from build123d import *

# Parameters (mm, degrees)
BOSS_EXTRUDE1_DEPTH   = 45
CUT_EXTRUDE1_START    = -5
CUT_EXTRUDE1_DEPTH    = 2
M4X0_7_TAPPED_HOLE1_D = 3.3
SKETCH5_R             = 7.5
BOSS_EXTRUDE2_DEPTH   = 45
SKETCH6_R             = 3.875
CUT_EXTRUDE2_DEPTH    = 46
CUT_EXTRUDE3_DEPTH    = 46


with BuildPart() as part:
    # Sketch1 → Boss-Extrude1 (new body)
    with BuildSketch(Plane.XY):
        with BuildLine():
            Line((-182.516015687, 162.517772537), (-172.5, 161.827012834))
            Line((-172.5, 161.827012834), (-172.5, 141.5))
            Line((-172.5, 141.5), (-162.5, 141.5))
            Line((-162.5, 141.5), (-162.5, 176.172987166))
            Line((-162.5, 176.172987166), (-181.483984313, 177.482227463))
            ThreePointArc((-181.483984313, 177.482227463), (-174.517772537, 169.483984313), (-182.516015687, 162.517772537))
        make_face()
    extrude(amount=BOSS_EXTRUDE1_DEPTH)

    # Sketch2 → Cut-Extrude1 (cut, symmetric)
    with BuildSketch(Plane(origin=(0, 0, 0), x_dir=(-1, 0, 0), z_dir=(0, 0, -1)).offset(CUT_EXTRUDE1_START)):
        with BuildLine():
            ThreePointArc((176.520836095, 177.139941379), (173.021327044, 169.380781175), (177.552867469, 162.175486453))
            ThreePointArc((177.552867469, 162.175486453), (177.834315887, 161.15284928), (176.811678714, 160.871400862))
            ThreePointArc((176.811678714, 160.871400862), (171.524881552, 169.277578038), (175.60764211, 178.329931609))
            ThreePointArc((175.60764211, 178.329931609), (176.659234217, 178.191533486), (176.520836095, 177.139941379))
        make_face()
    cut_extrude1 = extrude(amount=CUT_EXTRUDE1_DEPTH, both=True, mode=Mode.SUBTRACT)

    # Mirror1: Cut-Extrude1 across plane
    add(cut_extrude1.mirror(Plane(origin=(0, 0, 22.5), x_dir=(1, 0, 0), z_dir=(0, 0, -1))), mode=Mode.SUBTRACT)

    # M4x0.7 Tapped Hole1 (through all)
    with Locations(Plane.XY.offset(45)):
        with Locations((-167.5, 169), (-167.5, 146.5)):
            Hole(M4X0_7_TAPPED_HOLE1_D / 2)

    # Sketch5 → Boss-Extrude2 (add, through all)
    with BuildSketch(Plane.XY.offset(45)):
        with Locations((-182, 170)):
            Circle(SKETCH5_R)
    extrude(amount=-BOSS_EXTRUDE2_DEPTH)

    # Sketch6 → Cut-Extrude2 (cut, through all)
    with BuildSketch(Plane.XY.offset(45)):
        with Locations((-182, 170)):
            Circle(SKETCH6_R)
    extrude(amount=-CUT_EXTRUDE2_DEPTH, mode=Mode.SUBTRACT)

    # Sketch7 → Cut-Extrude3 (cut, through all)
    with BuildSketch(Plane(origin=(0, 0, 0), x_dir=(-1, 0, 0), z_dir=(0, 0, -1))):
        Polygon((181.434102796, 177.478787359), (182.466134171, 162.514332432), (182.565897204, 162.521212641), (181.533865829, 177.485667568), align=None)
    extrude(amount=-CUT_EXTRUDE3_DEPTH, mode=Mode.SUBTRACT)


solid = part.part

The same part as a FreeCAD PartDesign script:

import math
import FreeCAD as App
import Part
import Sketcher
from FreeCAD import Vector

doc = App.newDocument("Part")
body = doc.addObject("PartDesign::Body", "Body")
body.AllowCompound = True

# Sketch on XY plane
sketch1 = body.newObject("Sketcher::SketchObject", "Sketch")
sketch1.AttachmentSupport = (doc.getObject("XY_Plane"), [""])
sketch1.MapMode = "FlatFace"
sketch1.addGeometry([
    Part.LineSegment(Vector(-183, 163, 0), Vector(-172, 162, 0)),  # 0
    Part.LineSegment(Vector(-172, 162, 0), Vector(-172, 142, 0)),  # 1
    Part.LineSegment(Vector(-172, 142, 0), Vector(-162, 142, 0)),  # 2
    Part.LineSegment(Vector(-162, 142, 0), Vector(-162, 176, 0)),  # 3
    Part.LineSegment(Vector(-162, 176, 0), Vector(-181, 177, 0)),  # 4
    Part.ArcOfCircle(Part.Circle(Vector(-182, 170, 0), Vector(0, 0, 1), 8), math.radians(-94), math.radians(86)),  # 5
], False)
sketch1.addConstraint([
    Sketcher.Constraint("Coincident", 0, 2, 1, 1),
    Sketcher.Constraint("Coincident", 1, 2, 2, 1),
    Sketcher.Constraint("Coincident", 2, 2, 3, 1),
    Sketcher.Constraint("Coincident", 3, 2, 4, 1),
    Sketcher.Constraint("Tangent", 4, 2, 5, 2),
    Sketcher.Constraint("Tangent", 5, 1, 0, 1),
    Sketcher.Constraint("Vertical", 1),
    Sketcher.Constraint("Horizontal", 2),
    Sketcher.Constraint("Vertical", 3),
    Sketcher.Constraint("Parallel", 0, 4),
    Sketcher.Constraint("Radius", 5, 7.5),
    Sketcher.Constraint("DistanceX", 2, 1, 2, 2, 10.0),
    Sketcher.Constraint("DistanceX", 5, 3, -1, 1, 182.0),
    Sketcher.Constraint("DistanceY", -1, 1, 5, 3, 170.0),
    Sketcher.Constraint("DistanceX", 0, 2, -1, 1, 172.5),
    Sketcher.Constraint("DistanceY", -1, 1, 1, 2, 141.5),
    Sketcher.Constraint("DistanceY", 1, 2, 1, 1, 20.327013),
])
pad1 = body.newObject("PartDesign::Pad", "Pad")
pad1.Profile = sketch1
pad1.Length = 45

# Sketch on XY plane
sketch2 = body.newObject("Sketcher::SketchObject", "Sketch001")
sketch2.AttachmentSupport = (doc.getObject("XY_Plane"), [""])
sketch2.MapMode = "FlatFace"
sketch2.AttachmentOffset = App.Placement(Vector(0, 0, 5), App.Rotation())
sketch2.addGeometry([
    Part.ArcOfCircle(Part.Circle(Vector(-182, 170, 0), Vector(0, 0, 1), 9), math.radians(-60), math.radians(52)),
    Part.ArcOfCircle(Part.Circle(Vector(-176.1, 177.7, 0), Vector(0, 0, 1), 0.8), math.radians(52), math.radians(232)),
    Part.ArcOfCircle(Part.Circle(Vector(-182, 170, 0), Vector(0, 0, 1), 10.5), math.radians(-60), math.radians(52)),
    Part.ArcOfCircle(Part.Circle(Vector(-177.2, 161.5, 0), Vector(0, 0, 1), 0.8), math.radians(120), math.radians(300)),
], False)
sketch2.addConstraint([
    Sketcher.Constraint("Tangent", 0, 2, 1, 2),
    Sketcher.Constraint("Tangent", 1, 1, 2, 2),
    Sketcher.Constraint("Tangent", 2, 1, 3, 2),
    Sketcher.Constraint("Tangent", 3, 1, 0, 1),
    Sketcher.Constraint("Coincident", 2, 3, 0, 3),
    Sketcher.Constraint("Radius", 0, 9.0),
    Sketcher.Constraint("Radius", 2, 10.5),
    Sketcher.Constraint("DistanceX", 0, 3, -1, 1, 182.0),
    Sketcher.Constraint("DistanceY", -1, 1, 0, 3, 170.0),
    Sketcher.Constraint("DistanceY", -1, 1, 2, 1, 160.871401),
    Sketcher.Constraint("DistanceX", 1, 3, -1, 1, 176.064239),
])
pocket1 = body.newObject("PartDesign::Pocket", "Pocket")
pocket1.Profile = sketch2
pocket1.Length = 4
pocket1.Midplane = True
doc.recompute()

datumplane = body.newObject("PartDesign::Plane", "DatumPlane")
datumplane.AttachmentSupport = (doc.getObject("XY_Plane"), [""])
datumplane.MapMode = "FlatFace"
datumplane.AttachmentOffset = App.Placement(Vector(0, 0, 22.5), App.Rotation())
mirrored = body.newObject("PartDesign::Mirrored", "Mirrored")
mirrored.Originals = [pocket1]
mirrored.MirrorPlane = (datumplane, [""])
body.Tip = mirrored

# Sketch on XY plane
sketch3 = body.newObject("Sketcher::SketchObject", "Sketch002")
sketch3.AttachmentSupport = (doc.getObject("XY_Plane"), [""])
sketch3.MapMode = "FlatFace"
sketch3.AttachmentOffset = App.Placement(Vector(0, 0, 45), App.Rotation())
sketch3.addGeometry([
    Part.Circle(Vector(-167.5, 169, 0), Vector(0, 0, 1), 1.6),
    Part.Circle(Vector(-167.5, 146.5, 0), Vector(0, 0, 1), 1.6),
], False)
sketch3.addConstraint([
    Sketcher.Constraint("Equal", 0, 1),
    Sketcher.Constraint("Vertical", 0, 3, 1, 3),
    Sketcher.Constraint("Diameter", 0, 3.3),
    Sketcher.Constraint("DistanceY", -1, 1, 0, 3, 169.0),
    Sketcher.Constraint("DistanceX", 0, 3, -1, 1, 167.5),
    Sketcher.Constraint("DistanceY", -1, 1, 1, 3, 146.5),
])
doc.recompute()
hole = body.newObject("PartDesign::Hole", "Hole")
hole.Profile = sketch3
hole.ThreadType = "None"
hole.Diameter = 3.3
hole.DepthType = "ThroughAll"

# Sketch on XY plane
sketch4 = body.newObject("Sketcher::SketchObject", "Sketch003")
sketch4.AttachmentSupport = (doc.getObject("XY_Plane"), [""])
sketch4.MapMode = "FlatFace"
sketch4.AttachmentOffset = App.Placement(Vector(0, 0, 45), App.Rotation())
sketch4.addGeometry(Part.Circle(Vector(-182, 170, 0), Vector(0, 0, 1), 8), False)
sketch4.addConstraint([
    Sketcher.Constraint("Diameter", 0, 15.0),
    Sketcher.Constraint("DistanceX", 0, 3, -1, 1, 182.0),
    Sketcher.Constraint("DistanceY", -1, 1, 0, 3, 170.0),
])
pad2 = body.newObject("PartDesign::Pad", "Pad001")
pad2.Profile = sketch4
pad2.Length = 45
pad2.Reversed = True

# Sketch on XY plane
sketch5 = body.newObject("Sketcher::SketchObject", "Sketch004")
sketch5.AttachmentSupport = (doc.getObject("XY_Plane"), [""])
sketch5.MapMode = "FlatFace"
sketch5.AttachmentOffset = App.Placement(Vector(0, 0, 45), App.Rotation())
sketch5.addGeometry(Part.Circle(Vector(-182, 170, 0), Vector(0, 0, 1), 3.9), False)
sketch5.addConstraint([
    Sketcher.Constraint("Diameter", 0, 7.75),
    Sketcher.Constraint("DistanceX", 0, 3, -1, 1, 182.0),
    Sketcher.Constraint("DistanceY", -1, 1, 0, 3, 170.0),
])
pocket2 = body.newObject("PartDesign::Pocket", "Pocket001")
pocket2.Profile = sketch5
pocket2.Type = "ThroughAll"

# Sketch on XY plane
sketch6 = body.newObject("Sketcher::SketchObject", "Sketch005")
sketch6.AttachmentSupport = (doc.getObject("XY_Plane"), [""])
sketch6.MapMode = "FlatFace"
sketch6.addGeometry([
    Part.LineSegment(Vector(-181.434103, 177.478787, 0), Vector(-182.466134, 162.514332, 0)),
    Part.LineSegment(Vector(-182.466134, 162.514332, 0), Vector(-182.565897, 162.521213, 0)),
    Part.LineSegment(Vector(-182.565897, 162.521213, 0), Vector(-181.533866, 177.485668, 0)),
    Part.LineSegment(Vector(-181.533866, 177.485668, 0), Vector(-181.434103, 177.478787, 0)),
], False)
sketch6.addConstraint([
    Sketcher.Constraint("Coincident", 0, 2, 1, 1),
    Sketcher.Constraint("Coincident", 1, 2, 2, 1),
    Sketcher.Constraint("Coincident", 2, 2, 3, 1),
    Sketcher.Constraint("Coincident", 3, 2, 0, 1),
    Sketcher.Constraint("Perpendicular", 0, 1),
    Sketcher.Constraint("Perpendicular", 1, 2),
    Sketcher.Constraint("Perpendicular", 2, 3),
    Sketcher.Constraint("Distance", 0, 15.0),
    Sketcher.Constraint("Distance", 1, 0.1),
    Sketcher.Constraint("DistanceY", 0, 2, 1, 2, 0.00688),
    Sketcher.Constraint("DistanceX", 0, 2, -1, 1, 182.466134),
    Sketcher.Constraint("DistanceY", -1, 1, 0, 2, 162.514332),
])
pocket3 = body.newObject("PartDesign::Pocket", "Pocket002")
pocket3.Profile = sketch6
pocket3.Type = "ThroughAll"
pocket3.Reversed = True

doc.recompute()
